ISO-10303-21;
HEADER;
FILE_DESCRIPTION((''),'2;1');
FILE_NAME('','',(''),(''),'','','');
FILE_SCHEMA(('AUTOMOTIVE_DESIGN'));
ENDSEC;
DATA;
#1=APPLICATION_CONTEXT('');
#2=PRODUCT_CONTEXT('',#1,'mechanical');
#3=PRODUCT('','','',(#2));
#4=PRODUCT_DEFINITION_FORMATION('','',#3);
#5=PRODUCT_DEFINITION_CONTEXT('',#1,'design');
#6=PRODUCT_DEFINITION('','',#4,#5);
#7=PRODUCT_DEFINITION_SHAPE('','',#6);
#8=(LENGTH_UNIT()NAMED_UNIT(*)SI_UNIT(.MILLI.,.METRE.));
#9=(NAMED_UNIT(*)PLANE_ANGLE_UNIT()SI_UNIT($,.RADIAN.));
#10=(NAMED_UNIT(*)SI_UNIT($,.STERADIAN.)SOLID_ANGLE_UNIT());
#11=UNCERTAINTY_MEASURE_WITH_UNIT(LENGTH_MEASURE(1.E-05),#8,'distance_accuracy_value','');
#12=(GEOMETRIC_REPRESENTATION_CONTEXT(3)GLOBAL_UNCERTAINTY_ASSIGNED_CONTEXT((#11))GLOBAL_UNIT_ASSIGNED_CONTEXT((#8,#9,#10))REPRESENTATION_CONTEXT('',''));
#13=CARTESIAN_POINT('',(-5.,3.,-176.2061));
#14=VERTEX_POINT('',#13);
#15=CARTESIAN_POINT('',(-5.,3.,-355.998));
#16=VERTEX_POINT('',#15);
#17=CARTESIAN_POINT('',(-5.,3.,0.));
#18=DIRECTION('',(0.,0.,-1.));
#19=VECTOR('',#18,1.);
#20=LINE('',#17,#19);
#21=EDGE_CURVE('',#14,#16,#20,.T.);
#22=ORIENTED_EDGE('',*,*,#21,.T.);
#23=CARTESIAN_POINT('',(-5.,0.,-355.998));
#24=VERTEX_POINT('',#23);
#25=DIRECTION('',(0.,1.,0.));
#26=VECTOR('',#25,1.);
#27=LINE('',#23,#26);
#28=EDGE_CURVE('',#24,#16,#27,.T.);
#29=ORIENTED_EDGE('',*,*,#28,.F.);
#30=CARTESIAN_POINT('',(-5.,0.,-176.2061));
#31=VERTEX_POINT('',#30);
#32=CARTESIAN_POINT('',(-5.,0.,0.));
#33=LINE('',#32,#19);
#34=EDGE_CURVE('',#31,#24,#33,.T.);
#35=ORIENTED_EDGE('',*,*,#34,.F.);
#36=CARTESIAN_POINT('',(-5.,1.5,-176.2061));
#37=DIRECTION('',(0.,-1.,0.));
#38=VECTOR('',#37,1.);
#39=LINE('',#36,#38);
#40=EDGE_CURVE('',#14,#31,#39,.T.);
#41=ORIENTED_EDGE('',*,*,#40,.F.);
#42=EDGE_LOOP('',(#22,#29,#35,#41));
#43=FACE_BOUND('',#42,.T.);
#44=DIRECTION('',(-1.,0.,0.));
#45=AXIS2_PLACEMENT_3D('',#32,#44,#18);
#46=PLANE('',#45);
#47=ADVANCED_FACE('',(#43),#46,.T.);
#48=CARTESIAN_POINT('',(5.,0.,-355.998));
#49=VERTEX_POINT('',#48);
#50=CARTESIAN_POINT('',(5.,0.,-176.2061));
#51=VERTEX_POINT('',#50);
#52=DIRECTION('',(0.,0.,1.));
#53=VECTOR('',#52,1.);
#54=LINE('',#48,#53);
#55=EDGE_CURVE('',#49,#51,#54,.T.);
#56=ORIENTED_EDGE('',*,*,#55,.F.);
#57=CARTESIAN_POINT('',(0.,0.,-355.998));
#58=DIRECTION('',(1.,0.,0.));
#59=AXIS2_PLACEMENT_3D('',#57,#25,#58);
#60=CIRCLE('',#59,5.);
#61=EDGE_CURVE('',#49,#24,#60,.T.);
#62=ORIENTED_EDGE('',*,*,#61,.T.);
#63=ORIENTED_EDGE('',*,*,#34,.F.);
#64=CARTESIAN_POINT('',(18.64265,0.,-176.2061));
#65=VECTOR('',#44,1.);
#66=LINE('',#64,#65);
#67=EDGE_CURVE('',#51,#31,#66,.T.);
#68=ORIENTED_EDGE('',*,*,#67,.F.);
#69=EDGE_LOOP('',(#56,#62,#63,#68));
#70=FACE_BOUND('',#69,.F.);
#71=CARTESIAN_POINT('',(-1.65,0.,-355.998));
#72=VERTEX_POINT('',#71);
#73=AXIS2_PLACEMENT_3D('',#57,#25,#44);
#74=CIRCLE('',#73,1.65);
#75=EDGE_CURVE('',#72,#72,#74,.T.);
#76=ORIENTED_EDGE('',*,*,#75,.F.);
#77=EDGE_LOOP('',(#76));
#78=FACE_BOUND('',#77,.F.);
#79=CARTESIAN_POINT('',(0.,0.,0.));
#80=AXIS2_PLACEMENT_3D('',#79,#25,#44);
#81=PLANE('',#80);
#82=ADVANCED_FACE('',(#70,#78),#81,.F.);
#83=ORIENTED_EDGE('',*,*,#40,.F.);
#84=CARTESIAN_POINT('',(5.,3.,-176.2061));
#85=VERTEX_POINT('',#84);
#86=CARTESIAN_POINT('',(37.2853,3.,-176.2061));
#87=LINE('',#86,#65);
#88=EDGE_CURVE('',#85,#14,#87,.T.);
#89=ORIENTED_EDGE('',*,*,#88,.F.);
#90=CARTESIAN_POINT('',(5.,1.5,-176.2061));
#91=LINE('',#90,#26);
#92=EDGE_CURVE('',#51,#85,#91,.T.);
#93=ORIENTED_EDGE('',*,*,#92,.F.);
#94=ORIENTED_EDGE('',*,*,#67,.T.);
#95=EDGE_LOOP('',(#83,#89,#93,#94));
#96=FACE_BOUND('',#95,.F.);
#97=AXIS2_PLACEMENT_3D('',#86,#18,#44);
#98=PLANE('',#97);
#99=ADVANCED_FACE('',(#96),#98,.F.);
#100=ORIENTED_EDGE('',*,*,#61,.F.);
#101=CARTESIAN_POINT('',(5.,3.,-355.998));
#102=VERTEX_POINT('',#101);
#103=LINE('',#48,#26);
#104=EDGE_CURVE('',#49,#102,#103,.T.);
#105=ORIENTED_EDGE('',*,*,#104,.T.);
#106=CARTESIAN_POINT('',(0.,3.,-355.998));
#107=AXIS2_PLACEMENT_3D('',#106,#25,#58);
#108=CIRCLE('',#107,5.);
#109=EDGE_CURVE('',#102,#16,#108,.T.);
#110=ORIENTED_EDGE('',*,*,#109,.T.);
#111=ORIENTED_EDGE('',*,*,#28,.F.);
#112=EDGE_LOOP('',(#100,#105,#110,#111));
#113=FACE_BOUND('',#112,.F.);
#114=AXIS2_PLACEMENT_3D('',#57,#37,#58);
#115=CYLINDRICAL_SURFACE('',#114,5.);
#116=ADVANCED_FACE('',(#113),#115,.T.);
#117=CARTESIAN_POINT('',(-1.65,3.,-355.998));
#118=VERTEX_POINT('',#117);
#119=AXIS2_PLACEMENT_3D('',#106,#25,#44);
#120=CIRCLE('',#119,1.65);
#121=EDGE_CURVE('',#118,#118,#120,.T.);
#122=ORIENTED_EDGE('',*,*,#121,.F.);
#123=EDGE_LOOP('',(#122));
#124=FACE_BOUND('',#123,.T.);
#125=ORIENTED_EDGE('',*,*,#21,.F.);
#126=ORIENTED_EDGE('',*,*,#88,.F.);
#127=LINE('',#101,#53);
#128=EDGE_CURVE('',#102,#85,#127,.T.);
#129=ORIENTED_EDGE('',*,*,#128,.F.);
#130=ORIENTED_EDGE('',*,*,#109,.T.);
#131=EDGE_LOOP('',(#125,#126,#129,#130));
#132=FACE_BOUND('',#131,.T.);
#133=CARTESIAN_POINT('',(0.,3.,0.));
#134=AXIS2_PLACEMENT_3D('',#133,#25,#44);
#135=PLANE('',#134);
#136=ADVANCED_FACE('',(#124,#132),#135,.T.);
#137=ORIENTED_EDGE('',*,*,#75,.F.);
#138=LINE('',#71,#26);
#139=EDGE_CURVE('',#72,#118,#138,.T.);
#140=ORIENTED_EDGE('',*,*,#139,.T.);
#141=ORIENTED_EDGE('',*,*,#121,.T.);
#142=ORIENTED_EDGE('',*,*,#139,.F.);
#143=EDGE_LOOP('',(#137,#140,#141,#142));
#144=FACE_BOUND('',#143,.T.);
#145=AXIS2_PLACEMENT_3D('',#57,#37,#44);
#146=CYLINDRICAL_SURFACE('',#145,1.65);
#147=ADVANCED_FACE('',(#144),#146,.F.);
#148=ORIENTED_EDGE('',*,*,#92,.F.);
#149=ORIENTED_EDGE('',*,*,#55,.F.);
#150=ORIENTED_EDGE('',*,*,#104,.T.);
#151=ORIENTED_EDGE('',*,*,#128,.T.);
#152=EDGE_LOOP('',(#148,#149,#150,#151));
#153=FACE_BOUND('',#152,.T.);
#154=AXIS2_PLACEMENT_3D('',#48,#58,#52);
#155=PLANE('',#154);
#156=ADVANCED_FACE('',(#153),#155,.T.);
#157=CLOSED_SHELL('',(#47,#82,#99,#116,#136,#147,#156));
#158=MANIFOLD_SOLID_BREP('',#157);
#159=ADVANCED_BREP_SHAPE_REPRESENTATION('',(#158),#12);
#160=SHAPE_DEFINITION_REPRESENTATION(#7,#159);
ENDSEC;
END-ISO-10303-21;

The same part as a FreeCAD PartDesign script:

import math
import FreeCAD as App
import Part
import Sketcher
Q = App.Units.Quantity

doc = App.newDocument("Part")
body = doc.addObject("PartDesign::Body", "Body")

sketch1 = body.newObject("Sketcher::SketchObject", "Sketch")
sketch1.AttachmentSupport = (doc.getObject("XZ_Plane"), [""])
sketch1.MapMode = "FlatFace"
sketch1.addGeometry(Part.LineSegment(App.Vector(-5, -355.998, 0), App.Vector(-5, 0, 0)), False)
sketch1.addGeometry(Part.ArcOfCircle(Part.Circle(App.Vector(0, 0, 0), App.Vector(0, 0, 1), 5), math.radians(0), math.radians(180)), False)
sketch1.addGeometry(Part.LineSegment(App.Vector(5, 0, 0), App.Vector(5, -355.998, 0)), False)
sketch1.addGeometry(Part.ArcOfCircle(Part.Circle(App.Vector(0, -355.998, 0), App.Vector(0, 0, 1), 5), math.radians(180), math.radians(360)), False)
sketch1.addGeometry(Part.Circle(App.Vector(0, -355.998, 0), App.Vector(0, 0, 1), 1.65), False)
sketch1.addGeometry(Part.Circle(App.Vector(0, -57.376, 0), App.Vector(0, 0, 1), 1.65), False)
sketch1.addGeometry(Part.Circle(App.Vector(0, 0, 0), App.Vector(0, 0, 1), 1.65), False)
sketch1.addConstraint(Sketcher.Constraint("Tangent", 0, 2, 1, 2))
sketch1.addConstraint(Sketcher.Constraint("Tangent", 1, 1, 2, 1))
sketch1.addConstraint(Sketcher.Constraint("Tangent", 2, 2, 3, 2))
sketch1.addConstraint(Sketcher.Constraint("Tangent", 3, 1, 0, 1))
sketch1.addConstraint(Sketcher.Constraint("Vertical", 0))
sketch1.addConstraint(Sketcher.Constraint("Vertical", 2))
sketch1.addConstraint(Sketcher.Constraint("Coincident", 1, 3, -1, 1))
sketch1.addConstraint(Sketcher.Constraint("Coincident", 6, 3, -1, 1))
sketch1.addConstraint(Sketcher.Constraint("Coincident", 4, 3, 3, 3))
sketch1.addConstraint(Sketcher.Constraint("Equal", 4, 5))
sketch1.addConstraint(Sketcher.Constraint("Equal", 5, 6))
sketch1.addConstraint(Sketcher.Constraint("PointOnObject", 5, 3, -2))
sketch1.addConstraint(Sketcher.Constraint("Radius", 1, Q("5 mm")))
sketch1.addConstraint(Sketcher.Constraint("Diameter", 4, Q("3.3 mm")))
sketch1.addConstraint(Sketcher.Constraint("DistanceY", 0, 1, 0, 2, Q("355.998 mm")))
sketch1.addConstraint(Sketcher.Constraint("DistanceY", 5, 3, -1, 1, Q("57.376 mm")))
pad1 = body.newObject("PartDesign::Pad", "Pad")
pad1.Profile = sketch1
pad1.Length = 3
pad1.Reversed = True

sketch2 = body.newObject("Sketcher::SketchObject", "Sketch001")
sketch2.AttachmentSupport = (doc.getObject("XZ_Plane"), [""])
sketch2.MapMode = "FlatFace"
sketch2.AttachmentOffset = App.Placement(App.Vector(0, 0, -3), App.Rotation())
sketch2.addGeometry(Part.LineSegment(App.Vector(74.9908, -405.4155, 0), App.Vector(-95.1798, -405.4155, 0)), False)
sketch2.addGeometry(Part.LineSegment(App.Vector(-95.1798, -405.4155, 0), App.Vector(-95.1798, 44.073, 0)), False)
sketch2.addGeometry(Part.LineSegment(App.Vector(-95.1798, 44.073, 0), App.Vector(74.9908, 44.073, 0)), False)
sketch2.addGeometry(Part.LineSegment(App.Vector(74.9908, 44.073, 0), App.Vector(74.9908, -405.4155, 0)), False)
sketch2.addGeometry(Part.LineSegment(App.Vector(-26.2185, -176.2061, 0), App.Vector(-26.2185, -378.6248, 0)), False)
sketch2.addGeometry(Part.LineSegment(App.Vector(-26.2185, -378.6248, 0), App.Vector(37.2853, -378.6248, 0)), False)
sketch2.addGeometry(Part.LineSegment(App.Vector(37.2853, -378.6248, 0), App.Vector(37.2853, -176.2061, 0)), False)
sketch2.addGeometry(Part.LineSegment(App.Vector(37.2853, -176.2061, 0), App.Vector(-26.2185, -176.2061, 0)), False)
sketch2.addConstraint(Sketcher.Constraint("Coincident", 0, 2, 1, 1))
sketch2.addConstraint(Sketcher.Constraint("Coincident", 1, 2, 2, 1))
sketch2.addConstraint(Sketcher.Constraint("Coincident", 2, 2, 3, 1))
sketch2.addConstraint(Sketcher.Constraint("Coincident", 3, 2, 0, 1))
sketch2.addConstraint(Sketcher.Constraint("Coincident", 4, 2, 5, 1))
sketch2.addConstraint(Sketcher.Constraint("Coincident", 5, 2, 6, 1))
sketch2.addConstraint(Sketcher.Constraint("Coincident", 6, 2, 7, 1))
sketch2.addConstraint(Sketcher.Constraint("Coincident", 7, 2, 4, 1))
sketch2.addConstraint(Sketcher.Constraint("Horizontal", 0))
sketch2.addConstraint(Sketcher.Constraint("Vertical", 1))
sketch2.addConstraint(Sketcher.Constraint("Horizontal", 2))
sketch2.addConstraint(Sketcher.Constraint("Vertical", 3))
sketch2.addConstraint(Sketcher.Constraint("Vertical", 4))
sketch2.addConstraint(Sketcher.Constraint("Horizontal", 5))
sketch2.addConstraint(Sketcher.Constraint("Vertical", 6))
sketch2.addConstraint(Sketcher.Constraint("Horizontal", 7))
sketch2.addConstraint(Sketcher.Constraint("DistanceX", 0, 2, 0, 1, Q("170.1706 mm")))
sketch2.addConstraint(Sketcher.Constraint("DistanceX", 5, 1, 5, 2, Q("63.5038 mm")))
sketch2.addConstraint(Sketcher.Constraint("DistanceY", 1, 1, 1, 2, Q("449.4885 mm")))
sketch2.addConstraint(Sketcher.Constraint("DistanceY", 4, 2, 4, 1, Q("202.4187 mm")))
sketch2.addConstraint(Sketcher.Constraint("DistanceY", -1, 1, 1, 2, Q("44.073 mm")))
sketch2.addConstraint(Sketcher.Constraint("DistanceY", 6, 2, -1, 1, Q("176.206 mm")))
sketch2.addConstraint(Sketcher.Constraint("DistanceX", 0, 2, 5, 2, Q("132.465 mm")))
sketch2.addConstraint(Sketcher.Constraint("DistanceX", 0, 2, -1, 1, Q("95.1798 mm")))
pocket1 = body.newObject("PartDesign::Pocket", "Pocket")
pocket1.Profile = sketch2
pocket1.Length = 10
pocket1.Reversed = True

doc.recompute()
